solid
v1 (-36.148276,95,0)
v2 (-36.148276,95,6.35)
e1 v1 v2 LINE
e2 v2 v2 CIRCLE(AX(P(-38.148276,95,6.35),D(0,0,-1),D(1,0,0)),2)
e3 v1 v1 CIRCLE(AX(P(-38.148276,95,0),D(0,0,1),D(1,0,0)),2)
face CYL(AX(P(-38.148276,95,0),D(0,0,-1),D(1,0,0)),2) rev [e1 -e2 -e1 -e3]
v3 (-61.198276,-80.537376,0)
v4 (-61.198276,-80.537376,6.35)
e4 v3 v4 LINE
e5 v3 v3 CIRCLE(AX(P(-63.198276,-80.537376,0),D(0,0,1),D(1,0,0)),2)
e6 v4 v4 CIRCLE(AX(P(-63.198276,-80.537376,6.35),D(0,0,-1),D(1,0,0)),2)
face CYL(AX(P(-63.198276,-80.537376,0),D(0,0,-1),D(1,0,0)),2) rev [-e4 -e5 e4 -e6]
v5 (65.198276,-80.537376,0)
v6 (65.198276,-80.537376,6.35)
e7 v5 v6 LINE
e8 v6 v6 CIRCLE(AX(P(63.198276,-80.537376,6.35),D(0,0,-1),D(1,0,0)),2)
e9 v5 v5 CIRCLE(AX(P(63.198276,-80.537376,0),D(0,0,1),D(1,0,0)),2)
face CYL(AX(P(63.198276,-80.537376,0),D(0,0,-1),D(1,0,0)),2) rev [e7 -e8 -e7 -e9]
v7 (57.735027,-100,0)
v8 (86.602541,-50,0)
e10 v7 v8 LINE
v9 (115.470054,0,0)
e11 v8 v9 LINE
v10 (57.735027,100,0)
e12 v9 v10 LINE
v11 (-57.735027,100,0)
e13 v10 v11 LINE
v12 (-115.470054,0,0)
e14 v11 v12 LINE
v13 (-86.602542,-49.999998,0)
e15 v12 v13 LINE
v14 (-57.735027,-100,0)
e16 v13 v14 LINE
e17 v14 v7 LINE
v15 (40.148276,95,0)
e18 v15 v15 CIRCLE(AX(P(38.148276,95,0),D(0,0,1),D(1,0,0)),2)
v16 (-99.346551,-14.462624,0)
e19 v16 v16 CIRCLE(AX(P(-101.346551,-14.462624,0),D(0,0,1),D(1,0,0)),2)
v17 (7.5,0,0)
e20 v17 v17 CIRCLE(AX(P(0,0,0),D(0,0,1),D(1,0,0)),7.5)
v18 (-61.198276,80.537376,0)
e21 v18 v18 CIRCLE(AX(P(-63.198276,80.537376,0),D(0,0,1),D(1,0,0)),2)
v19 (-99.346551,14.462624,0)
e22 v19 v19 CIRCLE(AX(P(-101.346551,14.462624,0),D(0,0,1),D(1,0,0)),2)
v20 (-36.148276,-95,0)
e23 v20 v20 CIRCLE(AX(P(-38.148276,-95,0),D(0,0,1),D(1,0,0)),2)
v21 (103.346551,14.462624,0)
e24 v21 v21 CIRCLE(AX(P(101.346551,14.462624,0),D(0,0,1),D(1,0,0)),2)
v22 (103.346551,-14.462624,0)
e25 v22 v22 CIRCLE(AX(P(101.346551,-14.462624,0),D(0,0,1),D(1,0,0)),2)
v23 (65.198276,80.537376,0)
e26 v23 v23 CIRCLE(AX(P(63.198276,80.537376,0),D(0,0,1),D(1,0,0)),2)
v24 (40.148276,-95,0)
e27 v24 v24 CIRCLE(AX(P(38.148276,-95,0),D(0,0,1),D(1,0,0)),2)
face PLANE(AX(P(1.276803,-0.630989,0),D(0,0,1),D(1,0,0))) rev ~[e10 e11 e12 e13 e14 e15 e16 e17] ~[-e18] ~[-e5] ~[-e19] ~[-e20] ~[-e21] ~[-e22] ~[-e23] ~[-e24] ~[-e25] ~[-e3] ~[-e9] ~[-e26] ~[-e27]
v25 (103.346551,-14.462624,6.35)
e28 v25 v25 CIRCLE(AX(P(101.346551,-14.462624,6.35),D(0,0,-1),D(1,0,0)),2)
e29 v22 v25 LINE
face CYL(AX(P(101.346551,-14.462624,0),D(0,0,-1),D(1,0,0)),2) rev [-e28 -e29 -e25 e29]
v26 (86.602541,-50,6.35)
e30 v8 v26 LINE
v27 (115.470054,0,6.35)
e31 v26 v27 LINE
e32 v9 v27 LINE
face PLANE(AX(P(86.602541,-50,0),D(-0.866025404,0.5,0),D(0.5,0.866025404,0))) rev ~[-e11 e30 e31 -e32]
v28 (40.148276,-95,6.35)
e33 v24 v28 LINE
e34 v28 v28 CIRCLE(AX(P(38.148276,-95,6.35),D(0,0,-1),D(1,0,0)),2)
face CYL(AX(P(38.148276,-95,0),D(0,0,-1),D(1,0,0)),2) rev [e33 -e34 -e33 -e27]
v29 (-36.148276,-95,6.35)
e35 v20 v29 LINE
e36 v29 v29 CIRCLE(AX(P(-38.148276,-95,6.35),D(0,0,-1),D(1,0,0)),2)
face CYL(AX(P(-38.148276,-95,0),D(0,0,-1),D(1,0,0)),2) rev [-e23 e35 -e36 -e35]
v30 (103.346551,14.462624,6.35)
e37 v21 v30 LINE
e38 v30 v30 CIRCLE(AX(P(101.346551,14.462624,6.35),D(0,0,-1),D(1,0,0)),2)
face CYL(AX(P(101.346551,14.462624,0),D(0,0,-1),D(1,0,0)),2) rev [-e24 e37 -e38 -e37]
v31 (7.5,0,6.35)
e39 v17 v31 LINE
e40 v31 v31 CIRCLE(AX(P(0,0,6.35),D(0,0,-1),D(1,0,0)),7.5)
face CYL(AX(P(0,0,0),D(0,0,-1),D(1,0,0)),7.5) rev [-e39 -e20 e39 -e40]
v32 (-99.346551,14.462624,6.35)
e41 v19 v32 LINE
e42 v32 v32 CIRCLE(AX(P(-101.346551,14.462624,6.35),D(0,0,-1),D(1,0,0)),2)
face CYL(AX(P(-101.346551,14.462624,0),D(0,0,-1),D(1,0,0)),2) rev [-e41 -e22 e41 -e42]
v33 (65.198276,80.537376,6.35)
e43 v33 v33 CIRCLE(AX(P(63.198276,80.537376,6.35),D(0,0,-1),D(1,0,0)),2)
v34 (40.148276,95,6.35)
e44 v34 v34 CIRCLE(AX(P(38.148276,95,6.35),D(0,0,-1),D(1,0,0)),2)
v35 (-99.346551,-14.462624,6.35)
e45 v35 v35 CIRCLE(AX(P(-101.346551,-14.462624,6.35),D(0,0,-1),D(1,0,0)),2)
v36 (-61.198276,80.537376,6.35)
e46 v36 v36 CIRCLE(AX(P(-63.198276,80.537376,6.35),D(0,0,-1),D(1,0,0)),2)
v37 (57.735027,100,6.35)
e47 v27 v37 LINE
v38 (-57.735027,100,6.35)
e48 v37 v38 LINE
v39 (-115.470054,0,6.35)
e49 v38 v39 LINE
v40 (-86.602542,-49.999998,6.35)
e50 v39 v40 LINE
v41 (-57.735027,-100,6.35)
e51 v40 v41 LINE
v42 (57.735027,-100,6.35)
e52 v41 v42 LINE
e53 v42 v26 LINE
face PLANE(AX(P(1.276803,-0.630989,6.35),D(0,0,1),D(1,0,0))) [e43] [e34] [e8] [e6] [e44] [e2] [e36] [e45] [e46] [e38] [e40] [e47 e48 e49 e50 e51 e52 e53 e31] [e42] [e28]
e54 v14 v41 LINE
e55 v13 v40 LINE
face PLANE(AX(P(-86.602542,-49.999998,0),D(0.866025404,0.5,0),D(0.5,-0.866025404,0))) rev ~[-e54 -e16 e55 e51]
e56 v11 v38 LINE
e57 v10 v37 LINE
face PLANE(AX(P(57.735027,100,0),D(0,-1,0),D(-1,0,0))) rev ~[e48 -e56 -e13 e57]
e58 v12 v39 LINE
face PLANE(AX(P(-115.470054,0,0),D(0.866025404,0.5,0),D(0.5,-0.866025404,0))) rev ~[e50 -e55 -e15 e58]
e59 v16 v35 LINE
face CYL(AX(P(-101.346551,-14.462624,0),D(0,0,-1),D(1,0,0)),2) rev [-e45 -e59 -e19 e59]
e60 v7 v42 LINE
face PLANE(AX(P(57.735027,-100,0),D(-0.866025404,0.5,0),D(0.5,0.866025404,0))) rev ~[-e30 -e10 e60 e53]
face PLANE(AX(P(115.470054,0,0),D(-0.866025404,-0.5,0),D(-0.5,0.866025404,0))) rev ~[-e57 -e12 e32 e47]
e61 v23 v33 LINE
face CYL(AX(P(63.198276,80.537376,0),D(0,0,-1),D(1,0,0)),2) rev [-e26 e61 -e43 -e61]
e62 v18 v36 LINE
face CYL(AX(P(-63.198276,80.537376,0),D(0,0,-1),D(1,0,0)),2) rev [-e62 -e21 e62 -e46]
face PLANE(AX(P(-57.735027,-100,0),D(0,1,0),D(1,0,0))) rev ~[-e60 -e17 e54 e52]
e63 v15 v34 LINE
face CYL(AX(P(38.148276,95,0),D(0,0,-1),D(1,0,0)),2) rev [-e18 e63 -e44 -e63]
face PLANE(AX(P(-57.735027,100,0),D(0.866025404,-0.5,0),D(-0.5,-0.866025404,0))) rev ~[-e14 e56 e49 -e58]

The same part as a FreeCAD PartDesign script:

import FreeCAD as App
import Part
import Sketcher

V = App.Vector
Q = App.Units.Quantity

doc = App.newDocument("Part")
body = doc.addObject("PartDesign::Body", "Body")

sketch1 = body.newObject("Sketcher::SketchObject", "Sketch")
sketch1.AttachmentSupport = (doc.getObject("XY_Plane"), [""])
sketch1.MapMode = "FlatFace"
sketch1.addGeometry([
    Part.LineSegment(V(-87, -50, 0), V(-58, -100, 0)),
    Part.LineSegment(V(-58, -100, 0), V(58, -100, 0)),
    Part.LineSegment(V(58, -100, 0), V(87, -50, 0)),
    Part.LineSegment(V(87, -50, 0), V(115, 0, 0)),
    Part.LineSegment(V(115, 0, 0), V(58, 100, 0)),
    Part.LineSegment(V(58, 100, 0), V(-58, 100, 0)),
    Part.LineSegment(V(-58, 100, 0), V(-115, 0, 0)),
    Part.LineSegment(V(-115, 0, 0), V(-87, -50, 0)),
], False)
sketch1.addConstraint([
    Sketcher.Constraint("Coincident", 0, 2, 1, 1),
    Sketcher.Constraint("Coincident", 1, 2, 2, 1),
    Sketcher.Constraint("Coincident", 2, 2, 3, 1),
    Sketcher.Constraint("Coincident", 3, 2, 4, 1),
    Sketcher.Constraint("Coincident", 4, 2, 5, 1),
    Sketcher.Constraint("Coincident", 5, 2, 6, 1),
    Sketcher.Constraint("Coincident", 6, 2, 7, 1),
    Sketcher.Constraint("Coincident", 7, 2, 0, 1),
    Sketcher.Constraint("Horizontal", 1),
    Sketcher.Constraint("Horizontal", 5),
    Sketcher.Constraint("Symmetric", 0, 2, 4, 2, -1, 1),
    Sketcher.Constraint("Symmetric", 3, 2, 6, 2, -1, 1),
    Sketcher.Constraint("Symmetric", 2, 2, 7, 2, -2),
    Sketcher.Constraint("PointOnObject", 3, 2, -1),
    Sketcher.Constraint("Parallel", 2, 3),
    Sketcher.Constraint("Parallel", 0, 4),
    Sketcher.Constraint("Parallel", 3, 6),
    Sketcher.Constraint("Equal", 2, 3),
    Sketcher.Constraint("Angle", 0, Q("-60 deg")),
    Sketcher.Constraint("DistanceY", 0, 2, -1, 1, 100.0),
    Sketcher.Constraint("DistanceX", 1, 1, 1, 2, 115.470054),
])
pad1 = body.newObject("PartDesign::Pad", "Pad")
pad1.Profile = sketch1
pad1.Length = 6.35

sketch2 = body.newObject("Sketcher::SketchObject", "Sketch001")
sketch2.AttachmentSupport = (doc.getObject("XY_Plane"), [""])
sketch2.MapMode = "FlatFace"
sketch2.addGeometry([
    Part.Circle(V(38.1, 95, 0), V(0, 0, 1), 2),
    Part.Circle(V(-38.1, 95, 0), V(0, 0, 1), 2),
    Part.Circle(V(-63.2, 80.5, 0), V(0, 0, 1), 2),
    Part.Circle(V(-101.3, 14.5, 0), V(0, 0, 1), 2),
    Part.Circle(V(-101.3, -14.5, 0), V(0, 0, 1), 2),
    Part.Circle(V(-63.2, -80.5, 0), V(0, 0, 1), 2),
    Part.Circle(V(-38.1, -95, 0), V(0, 0, 1), 2),
    Part.Circle(V(38.1, -95, 0), V(0, 0, 1), 2),
    Part.Circle(V(63.2, -80.5, 0), V(0, 0, 1), 2),
    Part.Circle(V(101.3, -14.5, 0), V(0, 0, 1), 2),
    Part.Circle(V(101.3, 14.5, 0), V(0, 0, 1), 2),
    Part.Circle(V(63.2, 80.5, 0), V(0, 0, 1), 2),
], False)
sketch2.addConstraint([
    Sketcher.Constraint("Equal", 0, 1),
    Sketcher.Constraint("Equal", 1, 2),
    Sketcher.Constraint("Equal", 2, 3),
    Sketcher.Constraint("Equal", 3, 4),
    Sketcher.Constraint("Equal", 4, 5),
    Sketcher.Constraint("Equal", 5, 6),
    Sketcher.Constraint("Equal", 6, 7),
    Sketcher.Constraint("Equal", 7, 8),
    Sketcher.Constraint("Equal", 8, 9),
    Sketcher.Constraint("Equal", 9, 10),
    Sketcher.Constraint("Equal", 10, 11),
    Sketcher.Constraint("Symmetric", 0, 3, 6, 3, -1, 1),
    Sketcher.Constraint("Symmetric", 1, 3, 7, 3, -1, 1),
    Sketcher.Constraint("Symmetric", 2, 3, 8, 3, -1, 1),
    Sketcher.Constraint("Symmetric", 3, 3, 9, 3, -1, 1),
    Sketcher.Constraint("Symmetric", 4, 3, 10, 3, -1, 1),
    Sketcher.Constraint("Symmetric", 5, 3, 11, 3, -1, 1),
    Sketcher.Constraint("Symmetric", 0, 3, 1, 3, -2),
    Sketcher.Constraint("Symmetric", 5, 3, 8, 3, -2),
    Sketcher.Constraint("Symmetric", 4, 3, 9, 3, -2),
    Sketcher.Constraint("Diameter", 0, 4.0),
    Sketcher.Constraint("DistanceY", -1, 1, 0, 3, 95.0),
    Sketcher.Constraint("DistanceY", 4, 3, 2, 3, 95.0),
    Sketcher.Constraint("DistanceX", 2, 3, 1, 3, 25.05),
    Sketcher.Constraint("DistanceX", 3, 3, -1, 1, 101.346551),
    Sketcher.Constraint("DistanceX", 1, 3, 0, 3, 76.296551),
    Sketcher.Constraint("DistanceY", 3, 3, 2, 3, 66.074752),
])
pocket1 = body.newObject("PartDesign::Pocket", "Pocket")
pocket1.Profile = sketch2
pocket1.Length = 20000
pocket1.Reversed = True

sketch3 = body.newObject("Sketcher::SketchObject", "Sketch002")
sketch3.AttachmentSupport = (doc.getObject("XY_Plane"), [""])
sketch3.MapMode = "FlatFace"
sketch3.addGeometry(Part.Circle(V(0, 0, 0), V(0, 0, 1), 8), False)
sketch3.addConstraint([
    Sketcher.Constraint("Coincident", 0, 3, -1, 1),
    Sketcher.Constraint("Diameter", 0, 15.0),
])
pocket2 = body.newObject("PartDesign::Pocket", "Pocket001")
pocket2.Profile = sketch3
pocket2.Length = 55.3
pocket2.Reversed = True

doc.recompute()
